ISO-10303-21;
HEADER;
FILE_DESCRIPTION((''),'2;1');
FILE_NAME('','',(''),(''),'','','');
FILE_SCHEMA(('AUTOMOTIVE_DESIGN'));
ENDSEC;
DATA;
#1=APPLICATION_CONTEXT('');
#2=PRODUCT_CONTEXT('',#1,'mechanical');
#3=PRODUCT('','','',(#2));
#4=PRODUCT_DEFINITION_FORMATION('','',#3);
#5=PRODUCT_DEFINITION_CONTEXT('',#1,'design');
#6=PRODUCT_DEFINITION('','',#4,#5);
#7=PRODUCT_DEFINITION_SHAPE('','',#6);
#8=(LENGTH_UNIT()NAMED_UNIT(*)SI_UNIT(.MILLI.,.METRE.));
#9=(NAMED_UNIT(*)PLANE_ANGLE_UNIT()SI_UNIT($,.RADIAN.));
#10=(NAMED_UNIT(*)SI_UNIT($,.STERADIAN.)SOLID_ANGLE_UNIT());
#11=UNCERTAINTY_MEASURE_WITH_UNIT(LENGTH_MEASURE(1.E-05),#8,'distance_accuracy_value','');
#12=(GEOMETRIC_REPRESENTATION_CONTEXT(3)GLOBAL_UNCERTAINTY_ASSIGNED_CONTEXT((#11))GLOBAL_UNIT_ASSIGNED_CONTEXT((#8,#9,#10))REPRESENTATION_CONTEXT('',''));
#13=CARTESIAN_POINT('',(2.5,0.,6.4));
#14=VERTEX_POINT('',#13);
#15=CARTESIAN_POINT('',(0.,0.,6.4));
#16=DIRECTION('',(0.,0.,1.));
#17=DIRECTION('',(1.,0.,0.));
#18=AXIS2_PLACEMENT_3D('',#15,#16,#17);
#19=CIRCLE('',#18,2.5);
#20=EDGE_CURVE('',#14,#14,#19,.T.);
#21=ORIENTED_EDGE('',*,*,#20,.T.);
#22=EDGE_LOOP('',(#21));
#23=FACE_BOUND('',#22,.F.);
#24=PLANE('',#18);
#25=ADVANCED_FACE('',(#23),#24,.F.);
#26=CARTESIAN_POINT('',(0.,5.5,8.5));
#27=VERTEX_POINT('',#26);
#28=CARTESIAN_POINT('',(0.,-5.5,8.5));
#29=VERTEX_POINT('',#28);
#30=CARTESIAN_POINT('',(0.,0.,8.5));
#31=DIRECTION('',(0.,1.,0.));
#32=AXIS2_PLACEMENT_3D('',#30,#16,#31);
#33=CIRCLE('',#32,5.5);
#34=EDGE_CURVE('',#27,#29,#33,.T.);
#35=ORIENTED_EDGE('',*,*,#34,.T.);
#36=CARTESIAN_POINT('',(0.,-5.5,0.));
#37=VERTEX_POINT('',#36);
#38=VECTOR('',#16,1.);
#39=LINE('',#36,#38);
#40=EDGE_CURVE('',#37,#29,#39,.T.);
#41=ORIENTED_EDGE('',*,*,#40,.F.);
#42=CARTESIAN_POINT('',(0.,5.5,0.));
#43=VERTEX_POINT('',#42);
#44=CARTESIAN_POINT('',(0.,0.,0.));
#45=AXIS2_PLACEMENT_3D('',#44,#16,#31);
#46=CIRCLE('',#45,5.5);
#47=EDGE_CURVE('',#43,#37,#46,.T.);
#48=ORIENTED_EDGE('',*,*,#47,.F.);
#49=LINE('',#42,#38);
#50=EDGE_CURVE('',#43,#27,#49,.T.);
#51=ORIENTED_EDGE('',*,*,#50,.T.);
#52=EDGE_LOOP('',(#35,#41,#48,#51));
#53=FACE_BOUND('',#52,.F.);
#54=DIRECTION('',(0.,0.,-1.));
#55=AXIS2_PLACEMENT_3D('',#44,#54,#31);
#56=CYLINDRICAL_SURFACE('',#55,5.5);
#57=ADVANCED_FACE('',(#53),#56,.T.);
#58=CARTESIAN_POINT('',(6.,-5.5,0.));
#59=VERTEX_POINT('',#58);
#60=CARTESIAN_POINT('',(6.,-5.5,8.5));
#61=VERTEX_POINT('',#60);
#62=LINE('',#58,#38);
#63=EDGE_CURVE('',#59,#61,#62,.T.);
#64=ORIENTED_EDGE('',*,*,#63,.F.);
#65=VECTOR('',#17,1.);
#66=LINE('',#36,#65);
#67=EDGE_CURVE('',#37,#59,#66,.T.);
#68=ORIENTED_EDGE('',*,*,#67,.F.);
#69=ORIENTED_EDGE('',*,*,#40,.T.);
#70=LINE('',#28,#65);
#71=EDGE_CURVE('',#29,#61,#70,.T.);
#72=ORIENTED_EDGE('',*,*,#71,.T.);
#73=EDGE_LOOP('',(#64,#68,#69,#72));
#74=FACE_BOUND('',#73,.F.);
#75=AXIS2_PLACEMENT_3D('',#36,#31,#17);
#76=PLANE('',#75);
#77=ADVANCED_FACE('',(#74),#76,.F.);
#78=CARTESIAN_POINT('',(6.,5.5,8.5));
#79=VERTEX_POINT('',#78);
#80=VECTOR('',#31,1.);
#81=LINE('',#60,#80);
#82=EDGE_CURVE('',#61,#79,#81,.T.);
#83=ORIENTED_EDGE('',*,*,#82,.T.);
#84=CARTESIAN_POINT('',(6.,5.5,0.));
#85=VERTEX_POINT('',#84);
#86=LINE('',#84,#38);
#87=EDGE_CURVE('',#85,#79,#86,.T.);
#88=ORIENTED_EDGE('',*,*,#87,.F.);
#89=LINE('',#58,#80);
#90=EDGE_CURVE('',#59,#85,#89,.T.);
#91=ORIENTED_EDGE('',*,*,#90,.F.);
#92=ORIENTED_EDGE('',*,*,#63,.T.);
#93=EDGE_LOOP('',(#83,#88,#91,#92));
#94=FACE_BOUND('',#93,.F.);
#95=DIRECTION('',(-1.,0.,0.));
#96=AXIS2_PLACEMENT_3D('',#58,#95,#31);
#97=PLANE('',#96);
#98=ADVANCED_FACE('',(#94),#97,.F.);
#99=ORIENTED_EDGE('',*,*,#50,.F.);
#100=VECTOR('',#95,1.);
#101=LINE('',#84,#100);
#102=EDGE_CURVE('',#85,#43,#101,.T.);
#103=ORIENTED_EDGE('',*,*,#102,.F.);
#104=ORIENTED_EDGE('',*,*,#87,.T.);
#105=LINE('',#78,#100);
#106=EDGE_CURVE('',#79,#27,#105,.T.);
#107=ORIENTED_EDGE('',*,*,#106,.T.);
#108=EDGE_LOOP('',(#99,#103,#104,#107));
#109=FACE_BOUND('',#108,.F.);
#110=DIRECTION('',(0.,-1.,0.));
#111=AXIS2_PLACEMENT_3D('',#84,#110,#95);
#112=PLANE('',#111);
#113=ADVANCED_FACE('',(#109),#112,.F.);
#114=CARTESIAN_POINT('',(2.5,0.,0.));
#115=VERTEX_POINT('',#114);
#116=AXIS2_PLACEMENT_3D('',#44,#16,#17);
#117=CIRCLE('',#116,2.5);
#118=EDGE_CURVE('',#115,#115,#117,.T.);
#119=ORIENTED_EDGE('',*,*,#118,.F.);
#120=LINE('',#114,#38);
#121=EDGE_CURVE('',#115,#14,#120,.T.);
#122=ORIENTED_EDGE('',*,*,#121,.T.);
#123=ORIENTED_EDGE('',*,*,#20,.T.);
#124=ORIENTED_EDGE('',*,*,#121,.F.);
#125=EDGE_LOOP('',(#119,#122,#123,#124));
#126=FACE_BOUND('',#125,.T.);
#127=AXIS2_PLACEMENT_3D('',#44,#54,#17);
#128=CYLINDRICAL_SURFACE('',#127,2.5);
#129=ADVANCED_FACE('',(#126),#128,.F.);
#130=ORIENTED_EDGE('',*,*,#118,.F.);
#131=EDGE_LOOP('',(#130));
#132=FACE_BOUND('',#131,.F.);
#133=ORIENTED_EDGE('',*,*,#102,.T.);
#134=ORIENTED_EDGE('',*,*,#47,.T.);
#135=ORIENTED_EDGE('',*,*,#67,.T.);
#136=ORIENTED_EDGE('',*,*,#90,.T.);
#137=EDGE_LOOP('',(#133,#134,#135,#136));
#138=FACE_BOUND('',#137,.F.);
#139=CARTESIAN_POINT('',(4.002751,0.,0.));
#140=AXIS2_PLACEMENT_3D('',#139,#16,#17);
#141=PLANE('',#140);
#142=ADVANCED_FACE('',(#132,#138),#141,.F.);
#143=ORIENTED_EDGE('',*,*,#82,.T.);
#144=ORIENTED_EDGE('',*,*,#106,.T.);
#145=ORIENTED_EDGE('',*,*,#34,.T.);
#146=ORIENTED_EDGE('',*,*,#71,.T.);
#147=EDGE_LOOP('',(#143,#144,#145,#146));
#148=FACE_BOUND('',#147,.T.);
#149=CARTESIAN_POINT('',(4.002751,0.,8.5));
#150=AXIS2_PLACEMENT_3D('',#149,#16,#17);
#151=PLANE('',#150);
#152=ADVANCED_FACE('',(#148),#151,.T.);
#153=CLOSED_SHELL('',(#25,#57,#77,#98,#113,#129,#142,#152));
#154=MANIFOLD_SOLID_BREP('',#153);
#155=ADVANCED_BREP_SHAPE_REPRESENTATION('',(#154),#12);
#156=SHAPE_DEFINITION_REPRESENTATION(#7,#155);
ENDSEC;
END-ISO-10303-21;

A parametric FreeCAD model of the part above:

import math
import FreeCAD as App
import Part
import Sketcher

V = App.Vector

doc = App.newDocument("Part")
params = doc.addObject("Spreadsheet::Sheet", "Params")
for row, (alias, value) in enumerate([
    ("sketch1_radius", "5.5 mm"),
    ("sketch1_width", "6 mm"),
    ("pad1_length", "8.5 mm"),
    ("sketch2_diameter", "5 mm"),
    ("pocket1_length", "6.4 mm"),
], start=1):
    params.set(f"A{row}", alias)
    params.set(f"B{row}", "=" + value)
    params.setAlias(f"B{row}", alias)

body = doc.addObject("PartDesign::Body", "Body")

# Sketch on XY plane
sketch1 = body.newObject("Sketcher::SketchObject", "Sketch")
sketch1.AttachmentSupport = (doc.getObject("XY_Plane"), [""])
sketch1.MapMode = "FlatFace"
sketch1.addGeometry([
    Part.LineSegment(V(0, -6, 0), V(6, -6, 0)),
    Part.LineSegment(V(6, -6, 0), V(6, 6, 0)),
    Part.LineSegment(V(6, 6, 0), V(0, 6, 0)),
    Part.ArcOfCircle(Part.Circle(V(0, 0, 0), V(0, 0, 1), 6), math.radians(90), math.radians(270)),
], False)
sketch1.addConstraint([
    Sketcher.Constraint("Coincident", 0, 2, 1, 1),
    Sketcher.Constraint("Coincident", 1, 2, 2, 1),
    Sketcher.Constraint("Tangent", 2, 2, 3, 1),
    Sketcher.Constraint("Tangent", 3, 2, 0, 1),
    Sketcher.Constraint("Horizontal", 0),
    Sketcher.Constraint("Vertical", 1),
    Sketcher.Constraint("Horizontal", 2),
    Sketcher.Constraint("Coincident", 3, 3, -1, 1),
    Sketcher.Constraint("Radius", 3, 5.5),
    Sketcher.Constraint("DistanceX", 0, 1, 0, 2, 6.0),
])
sketch1.setExpression("Constraints[8]", "Params.sketch1_radius")
sketch1.setExpression("Constraints[9]", "Params.sketch1_width")
pad1 = body.newObject("PartDesign::Pad", "Pad")
pad1.Profile = sketch1
pad1.setExpression("Length", "Params.pad1_length")

# Sketch on XY plane
sketch2 = body.newObject("Sketcher::SketchObject", "Sketch001")
sketch2.AttachmentSupport = (doc.getObject("XY_Plane"), [""])
sketch2.MapMode = "FlatFace"
sketch2.addGeometry(Part.Circle(V(0, 0, 0), V(0, 0, 1), 2.5), False)
sketch2.addConstraint([
    Sketcher.Constraint("Coincident", 0, 3, -1, 1),
    Sketcher.Constraint("Diameter", 0, 5.0),
])
sketch2.setExpression("Constraints[1]", "Params.sketch2_diameter")
pocket1 = body.newObject("PartDesign::Pocket", "Pocket")
pocket1.Profile = sketch2
pocket1.setExpression("Length", "Params.pocket1_length")
pocket1.Reversed = True

doc.recompute()
